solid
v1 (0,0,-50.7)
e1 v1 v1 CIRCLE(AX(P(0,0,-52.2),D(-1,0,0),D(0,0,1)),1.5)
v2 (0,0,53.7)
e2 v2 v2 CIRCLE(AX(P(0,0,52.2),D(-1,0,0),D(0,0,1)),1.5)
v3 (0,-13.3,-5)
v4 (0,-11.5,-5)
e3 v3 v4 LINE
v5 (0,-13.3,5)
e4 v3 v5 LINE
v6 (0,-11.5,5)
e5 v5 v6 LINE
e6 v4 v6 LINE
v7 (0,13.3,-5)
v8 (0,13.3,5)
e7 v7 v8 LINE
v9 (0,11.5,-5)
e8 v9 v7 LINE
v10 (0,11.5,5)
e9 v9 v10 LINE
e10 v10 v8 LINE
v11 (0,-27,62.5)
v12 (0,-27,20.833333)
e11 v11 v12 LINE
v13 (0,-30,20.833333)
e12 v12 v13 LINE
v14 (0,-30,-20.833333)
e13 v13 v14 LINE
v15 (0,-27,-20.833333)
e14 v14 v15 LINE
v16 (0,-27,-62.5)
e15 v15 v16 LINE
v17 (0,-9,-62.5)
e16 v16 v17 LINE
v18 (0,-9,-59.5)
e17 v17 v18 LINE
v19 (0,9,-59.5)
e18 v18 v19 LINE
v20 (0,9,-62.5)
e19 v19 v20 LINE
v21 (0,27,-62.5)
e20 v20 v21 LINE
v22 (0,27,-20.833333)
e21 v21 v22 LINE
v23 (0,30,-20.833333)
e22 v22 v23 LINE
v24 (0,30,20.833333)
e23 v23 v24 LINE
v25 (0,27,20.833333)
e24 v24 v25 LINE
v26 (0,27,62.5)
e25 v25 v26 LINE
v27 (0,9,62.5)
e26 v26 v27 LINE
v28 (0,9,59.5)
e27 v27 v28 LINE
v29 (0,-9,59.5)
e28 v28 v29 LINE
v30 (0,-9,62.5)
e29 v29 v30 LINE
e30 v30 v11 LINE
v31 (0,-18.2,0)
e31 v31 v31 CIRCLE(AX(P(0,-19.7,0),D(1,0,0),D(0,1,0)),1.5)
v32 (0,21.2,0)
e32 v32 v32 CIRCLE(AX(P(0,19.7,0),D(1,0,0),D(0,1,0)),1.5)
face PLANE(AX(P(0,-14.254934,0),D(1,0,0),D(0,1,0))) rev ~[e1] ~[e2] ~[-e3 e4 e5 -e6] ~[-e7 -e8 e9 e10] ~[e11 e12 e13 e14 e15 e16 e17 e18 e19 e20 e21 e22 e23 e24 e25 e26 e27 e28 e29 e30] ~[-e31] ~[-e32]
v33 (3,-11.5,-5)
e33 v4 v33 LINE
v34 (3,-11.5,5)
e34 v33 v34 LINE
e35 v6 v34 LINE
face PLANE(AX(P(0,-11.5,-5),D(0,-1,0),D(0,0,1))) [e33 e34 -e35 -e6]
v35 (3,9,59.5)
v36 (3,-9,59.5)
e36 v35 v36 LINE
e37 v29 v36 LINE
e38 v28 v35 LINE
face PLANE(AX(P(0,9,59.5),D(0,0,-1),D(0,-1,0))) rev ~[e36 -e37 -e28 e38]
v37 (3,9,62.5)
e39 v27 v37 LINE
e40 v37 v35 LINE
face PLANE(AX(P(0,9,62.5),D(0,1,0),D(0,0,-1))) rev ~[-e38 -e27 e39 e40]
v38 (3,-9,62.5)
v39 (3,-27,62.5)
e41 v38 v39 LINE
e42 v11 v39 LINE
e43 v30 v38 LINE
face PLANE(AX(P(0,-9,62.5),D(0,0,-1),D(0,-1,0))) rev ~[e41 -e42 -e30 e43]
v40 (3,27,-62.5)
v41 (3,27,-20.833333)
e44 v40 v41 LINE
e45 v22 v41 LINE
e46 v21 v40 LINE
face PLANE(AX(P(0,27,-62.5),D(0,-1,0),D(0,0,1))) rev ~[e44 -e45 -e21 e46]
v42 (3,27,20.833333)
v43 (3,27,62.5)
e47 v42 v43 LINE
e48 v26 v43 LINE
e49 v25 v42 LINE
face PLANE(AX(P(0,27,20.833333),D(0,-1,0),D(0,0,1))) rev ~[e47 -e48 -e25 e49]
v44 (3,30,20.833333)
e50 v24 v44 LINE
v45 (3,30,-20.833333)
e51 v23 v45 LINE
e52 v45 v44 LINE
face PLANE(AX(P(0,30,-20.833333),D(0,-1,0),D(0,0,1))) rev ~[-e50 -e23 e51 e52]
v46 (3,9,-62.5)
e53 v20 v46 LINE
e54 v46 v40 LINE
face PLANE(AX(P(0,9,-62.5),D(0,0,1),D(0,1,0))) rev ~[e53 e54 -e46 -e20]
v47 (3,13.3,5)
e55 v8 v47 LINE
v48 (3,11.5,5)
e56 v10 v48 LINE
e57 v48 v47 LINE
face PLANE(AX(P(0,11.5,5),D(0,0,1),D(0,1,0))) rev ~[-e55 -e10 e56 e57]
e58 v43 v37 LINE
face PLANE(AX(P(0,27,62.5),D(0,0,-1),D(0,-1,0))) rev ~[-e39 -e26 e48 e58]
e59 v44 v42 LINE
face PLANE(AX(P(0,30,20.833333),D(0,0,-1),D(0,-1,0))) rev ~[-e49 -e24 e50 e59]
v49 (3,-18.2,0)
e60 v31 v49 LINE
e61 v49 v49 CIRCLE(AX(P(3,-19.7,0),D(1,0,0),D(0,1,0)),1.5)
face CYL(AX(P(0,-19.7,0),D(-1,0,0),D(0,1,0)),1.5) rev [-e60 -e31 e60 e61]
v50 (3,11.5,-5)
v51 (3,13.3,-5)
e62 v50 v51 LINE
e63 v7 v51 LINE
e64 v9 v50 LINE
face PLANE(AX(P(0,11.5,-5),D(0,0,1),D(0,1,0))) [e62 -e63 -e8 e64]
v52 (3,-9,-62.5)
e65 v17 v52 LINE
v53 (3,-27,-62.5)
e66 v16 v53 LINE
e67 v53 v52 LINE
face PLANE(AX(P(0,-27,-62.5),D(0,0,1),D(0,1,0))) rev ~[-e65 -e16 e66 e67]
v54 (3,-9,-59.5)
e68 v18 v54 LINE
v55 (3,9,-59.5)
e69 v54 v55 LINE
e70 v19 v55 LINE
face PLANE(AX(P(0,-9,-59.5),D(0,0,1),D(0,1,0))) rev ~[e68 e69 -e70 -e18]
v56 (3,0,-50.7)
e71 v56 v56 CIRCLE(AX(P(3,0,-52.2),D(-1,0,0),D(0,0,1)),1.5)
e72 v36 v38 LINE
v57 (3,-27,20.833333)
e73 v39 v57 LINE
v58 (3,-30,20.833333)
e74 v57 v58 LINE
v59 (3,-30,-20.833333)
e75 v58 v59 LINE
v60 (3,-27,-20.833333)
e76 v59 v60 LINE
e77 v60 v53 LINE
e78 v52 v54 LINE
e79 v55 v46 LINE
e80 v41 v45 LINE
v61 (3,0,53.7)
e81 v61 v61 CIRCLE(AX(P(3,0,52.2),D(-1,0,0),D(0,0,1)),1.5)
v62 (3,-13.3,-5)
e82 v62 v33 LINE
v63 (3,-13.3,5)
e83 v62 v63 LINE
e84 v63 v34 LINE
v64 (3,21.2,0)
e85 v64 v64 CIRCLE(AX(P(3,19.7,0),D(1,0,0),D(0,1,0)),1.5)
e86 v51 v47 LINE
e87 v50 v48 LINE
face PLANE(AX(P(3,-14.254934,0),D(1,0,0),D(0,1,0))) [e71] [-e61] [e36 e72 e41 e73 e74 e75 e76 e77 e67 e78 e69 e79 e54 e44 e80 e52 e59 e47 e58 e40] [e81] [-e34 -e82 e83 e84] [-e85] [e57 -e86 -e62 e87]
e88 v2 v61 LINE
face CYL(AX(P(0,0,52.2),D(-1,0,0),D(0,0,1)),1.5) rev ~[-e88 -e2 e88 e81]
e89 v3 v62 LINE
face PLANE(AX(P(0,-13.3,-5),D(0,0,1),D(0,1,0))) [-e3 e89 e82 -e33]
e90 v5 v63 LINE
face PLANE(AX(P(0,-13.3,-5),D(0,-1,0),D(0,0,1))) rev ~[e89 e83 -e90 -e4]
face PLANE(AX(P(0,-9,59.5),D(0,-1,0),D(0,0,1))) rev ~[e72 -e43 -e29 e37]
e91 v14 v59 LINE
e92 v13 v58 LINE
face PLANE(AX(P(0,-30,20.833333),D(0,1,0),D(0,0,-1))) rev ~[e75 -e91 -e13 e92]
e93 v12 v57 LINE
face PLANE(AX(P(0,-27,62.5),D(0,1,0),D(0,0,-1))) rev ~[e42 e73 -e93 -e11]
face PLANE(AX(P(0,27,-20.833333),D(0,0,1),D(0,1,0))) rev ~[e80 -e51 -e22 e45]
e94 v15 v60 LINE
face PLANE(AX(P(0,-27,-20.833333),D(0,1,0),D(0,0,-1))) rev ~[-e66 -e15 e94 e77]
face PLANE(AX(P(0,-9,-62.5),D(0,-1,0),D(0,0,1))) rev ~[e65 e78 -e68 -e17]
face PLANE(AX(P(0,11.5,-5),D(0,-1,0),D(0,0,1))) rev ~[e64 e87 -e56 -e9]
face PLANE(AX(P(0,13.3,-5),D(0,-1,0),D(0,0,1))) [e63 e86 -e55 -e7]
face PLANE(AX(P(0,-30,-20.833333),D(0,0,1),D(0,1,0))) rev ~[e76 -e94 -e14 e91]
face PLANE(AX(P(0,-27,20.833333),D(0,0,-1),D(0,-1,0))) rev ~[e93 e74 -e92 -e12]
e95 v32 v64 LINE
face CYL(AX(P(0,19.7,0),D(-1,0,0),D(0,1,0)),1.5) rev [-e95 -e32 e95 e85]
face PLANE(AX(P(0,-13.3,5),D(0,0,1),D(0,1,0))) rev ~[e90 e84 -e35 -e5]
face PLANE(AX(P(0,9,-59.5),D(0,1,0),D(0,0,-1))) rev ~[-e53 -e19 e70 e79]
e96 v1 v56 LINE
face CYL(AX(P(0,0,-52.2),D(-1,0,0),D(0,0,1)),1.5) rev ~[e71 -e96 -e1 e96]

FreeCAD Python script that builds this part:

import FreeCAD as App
import Part
import Sketcher


def add_polygon(sketch, points):
    """Adds a closed chain of lines whose ends are joined by coincident constraints."""
    first, n = sketch.GeometryCount, len(points)
    for a, b in zip(points, points[1:] + points[:1]):
        sketch.addGeometry(Part.LineSegment(App.Vector(*a, 0), App.Vector(*b, 0)), False)
    for i in range(n):
        sketch.addConstraint(Sketcher.Constraint("Coincident", first + i, 2, first + (i + 1) % n, 1))

doc = App.newDocument("Part")
body = doc.addObject("PartDesign::Body", "Body")

sketch1 = body.newObject("Sketcher::SketchObject", "Sketch")
sketch1.AttachmentSupport = (doc.getObject("YZ_Plane"), [""])
sketch1.MapMode = "FlatFace"
add_polygon(sketch1, [(-27, 20.8), (-30, 20.8), (-30, -20.8), (-27, -20.8), (-27, -62.5), (-9, -62.5), (-9, -59.5), (9, -59.5), (9, -62.5), (27, -62.5), (27, -20.8), (30, -20.8), (30, 20.8), (27, 20.8), (27, 62.5), (9, 62.5), (9, 59.5), (-9, 59.5), (-9, 62.5), (-27, 62.5)])
sketch1.addGeometry(Part.Circle(App.Vector(-19.7, 0, 0), App.Vector(0, 0, 1), 1.5), False)
add_polygon(sketch1, [(-11.5, -5), (-13.3, -5), (-13.3, 5), (-11.5, 5)])
sketch1.addGeometry(Part.Circle(App.Vector(0, -52.2, 0), App.Vector(0, 0, 1), 1.5), False)
add_polygon(sketch1, [(13.3, -5), (11.5, -5), (11.5, 5), (13.3, 5)])
sketch1.addGeometry(Part.Circle(App.Vector(19.7, 0, 0), App.Vector(0, 0, 1), 1.5), False)
sketch1.addGeometry(Part.Circle(App.Vector(0, 52.2, 0), App.Vector(0, 0, 1), 1.5), False)
sketch1.addConstraint([
    Sketcher.Constraint("Horizontal", 0),
    Sketcher.Constraint("Vertical", 1),
    Sketcher.Constraint("Horizontal", 2),
    Sketcher.Constraint("Vertical", 3),
    Sketcher.Constraint("Horizontal", 4),
    Sketcher.Constraint("Vertical", 5),
    Sketcher.Constraint("Horizontal", 6),
    Sketcher.Constraint("Vertical", 7),
    Sketcher.Constraint("Horizontal", 8),
    Sketcher.Constraint("Vertical", 9),
    Sketcher.Constraint("Horizontal", 10),
    Sketcher.Constraint("Vertical", 11),
    Sketcher.Constraint("Horizontal", 12),
    Sketcher.Constraint("Vertical", 13),
    Sketcher.Constraint("Horizontal", 14),
    Sketcher.Constraint("Vertical", 15),
    Sketcher.Constraint("Horizontal", 16),
    Sketcher.Constraint("Vertical", 17),
    Sketcher.Constraint("Horizontal", 18),
    Sketcher.Constraint("Vertical", 19),
    Sketcher.Constraint("Horizontal", 21),
    Sketcher.Constraint("Vertical", 22),
    Sketcher.Constraint("Horizontal", 23),
    Sketcher.Constraint("Vertical", 24),
    Sketcher.Constraint("Horizontal", 26),
    Sketcher.Constraint("Vertical", 27),
    Sketcher.Constraint("Horizontal", 28),
    Sketcher.Constraint("Vertical", 29),
    Sketcher.Constraint("Equal", 20, 25),
    Sketcher.Constraint("Equal", 25, 30),
    Sketcher.Constraint("Equal", 30, 31),
    Sketcher.Constraint("Symmetric", 20, 3, 30, 3, -1, 1),
    Sketcher.Constraint("Symmetric", 25, 3, 31, 3, -1, 1),
    Sketcher.Constraint("Symmetric", 0, 2, 10, 2, -1, 1),
    Sketcher.Constraint("Symmetric", 2, 2, 12, 2, -1, 1),
    Sketcher.Constraint("Symmetric", 4, 2, 14, 2, -1, 1),
    Sketcher.Constraint("Symmetric", 6, 2, 16, 2, -1, 1),
    Sketcher.Constraint("Symmetric", 8, 2, 18, 2, -1, 1),
    Sketcher.Constraint("Symmetric", 23, 2, 26, 2, -1, 1),
    Sketcher.Constraint("Symmetric", 21, 2, 28, 2, -1, 1),
    Sketcher.Constraint("Symmetric", 4, 2, 7, 2, -2),
    Sketcher.Constraint("Symmetric", 2, 2, 9, 2, -2),
    Sketcher.Constraint("PointOnObject", 20, 3, -1),
    Sketcher.Constraint("PointOnObject", 25, 3, -2),
    Sketcher.Constraint("Horizontal", 24, 2, 26, 2),
    Sketcher.Constraint("Equal", 4, 6),
    Sketcher.Constraint("Equal", 1, 3),
    Sketcher.Constraint("Equal", 12, 5),
    Sketcher.Constraint("Diameter", 20, 3.0),
    Sketcher.Constraint("DistanceX", 0, 2, 0, 1, 3.0),
    Sketcher.Constraint("DistanceX", 4, 1, 4, 2, 18.0),
    Sketcher.Constraint("DistanceY", 22, 1, 22, 2, 10.0),
    Sketcher.Constraint("DistanceX", 21, 2, 21, 1, 1.8),
    Sketcher.Constraint("DistanceX", 24, 2, 26, 2, 23.0),
    Sketcher.Constraint("DistanceX", 20, 3, -1, 1, 19.7),
    Sketcher.Constraint("DistanceY", 25, 3, -1, 1, 52.2),
    Sketcher.Constraint("DistanceY", 3, 2, -1, 1, 62.5),
])
pad1 = body.newObject("PartDesign::Pad", "Pad")
pad1.Profile = sketch1
pad1.Length = 3

doc.recompute()
